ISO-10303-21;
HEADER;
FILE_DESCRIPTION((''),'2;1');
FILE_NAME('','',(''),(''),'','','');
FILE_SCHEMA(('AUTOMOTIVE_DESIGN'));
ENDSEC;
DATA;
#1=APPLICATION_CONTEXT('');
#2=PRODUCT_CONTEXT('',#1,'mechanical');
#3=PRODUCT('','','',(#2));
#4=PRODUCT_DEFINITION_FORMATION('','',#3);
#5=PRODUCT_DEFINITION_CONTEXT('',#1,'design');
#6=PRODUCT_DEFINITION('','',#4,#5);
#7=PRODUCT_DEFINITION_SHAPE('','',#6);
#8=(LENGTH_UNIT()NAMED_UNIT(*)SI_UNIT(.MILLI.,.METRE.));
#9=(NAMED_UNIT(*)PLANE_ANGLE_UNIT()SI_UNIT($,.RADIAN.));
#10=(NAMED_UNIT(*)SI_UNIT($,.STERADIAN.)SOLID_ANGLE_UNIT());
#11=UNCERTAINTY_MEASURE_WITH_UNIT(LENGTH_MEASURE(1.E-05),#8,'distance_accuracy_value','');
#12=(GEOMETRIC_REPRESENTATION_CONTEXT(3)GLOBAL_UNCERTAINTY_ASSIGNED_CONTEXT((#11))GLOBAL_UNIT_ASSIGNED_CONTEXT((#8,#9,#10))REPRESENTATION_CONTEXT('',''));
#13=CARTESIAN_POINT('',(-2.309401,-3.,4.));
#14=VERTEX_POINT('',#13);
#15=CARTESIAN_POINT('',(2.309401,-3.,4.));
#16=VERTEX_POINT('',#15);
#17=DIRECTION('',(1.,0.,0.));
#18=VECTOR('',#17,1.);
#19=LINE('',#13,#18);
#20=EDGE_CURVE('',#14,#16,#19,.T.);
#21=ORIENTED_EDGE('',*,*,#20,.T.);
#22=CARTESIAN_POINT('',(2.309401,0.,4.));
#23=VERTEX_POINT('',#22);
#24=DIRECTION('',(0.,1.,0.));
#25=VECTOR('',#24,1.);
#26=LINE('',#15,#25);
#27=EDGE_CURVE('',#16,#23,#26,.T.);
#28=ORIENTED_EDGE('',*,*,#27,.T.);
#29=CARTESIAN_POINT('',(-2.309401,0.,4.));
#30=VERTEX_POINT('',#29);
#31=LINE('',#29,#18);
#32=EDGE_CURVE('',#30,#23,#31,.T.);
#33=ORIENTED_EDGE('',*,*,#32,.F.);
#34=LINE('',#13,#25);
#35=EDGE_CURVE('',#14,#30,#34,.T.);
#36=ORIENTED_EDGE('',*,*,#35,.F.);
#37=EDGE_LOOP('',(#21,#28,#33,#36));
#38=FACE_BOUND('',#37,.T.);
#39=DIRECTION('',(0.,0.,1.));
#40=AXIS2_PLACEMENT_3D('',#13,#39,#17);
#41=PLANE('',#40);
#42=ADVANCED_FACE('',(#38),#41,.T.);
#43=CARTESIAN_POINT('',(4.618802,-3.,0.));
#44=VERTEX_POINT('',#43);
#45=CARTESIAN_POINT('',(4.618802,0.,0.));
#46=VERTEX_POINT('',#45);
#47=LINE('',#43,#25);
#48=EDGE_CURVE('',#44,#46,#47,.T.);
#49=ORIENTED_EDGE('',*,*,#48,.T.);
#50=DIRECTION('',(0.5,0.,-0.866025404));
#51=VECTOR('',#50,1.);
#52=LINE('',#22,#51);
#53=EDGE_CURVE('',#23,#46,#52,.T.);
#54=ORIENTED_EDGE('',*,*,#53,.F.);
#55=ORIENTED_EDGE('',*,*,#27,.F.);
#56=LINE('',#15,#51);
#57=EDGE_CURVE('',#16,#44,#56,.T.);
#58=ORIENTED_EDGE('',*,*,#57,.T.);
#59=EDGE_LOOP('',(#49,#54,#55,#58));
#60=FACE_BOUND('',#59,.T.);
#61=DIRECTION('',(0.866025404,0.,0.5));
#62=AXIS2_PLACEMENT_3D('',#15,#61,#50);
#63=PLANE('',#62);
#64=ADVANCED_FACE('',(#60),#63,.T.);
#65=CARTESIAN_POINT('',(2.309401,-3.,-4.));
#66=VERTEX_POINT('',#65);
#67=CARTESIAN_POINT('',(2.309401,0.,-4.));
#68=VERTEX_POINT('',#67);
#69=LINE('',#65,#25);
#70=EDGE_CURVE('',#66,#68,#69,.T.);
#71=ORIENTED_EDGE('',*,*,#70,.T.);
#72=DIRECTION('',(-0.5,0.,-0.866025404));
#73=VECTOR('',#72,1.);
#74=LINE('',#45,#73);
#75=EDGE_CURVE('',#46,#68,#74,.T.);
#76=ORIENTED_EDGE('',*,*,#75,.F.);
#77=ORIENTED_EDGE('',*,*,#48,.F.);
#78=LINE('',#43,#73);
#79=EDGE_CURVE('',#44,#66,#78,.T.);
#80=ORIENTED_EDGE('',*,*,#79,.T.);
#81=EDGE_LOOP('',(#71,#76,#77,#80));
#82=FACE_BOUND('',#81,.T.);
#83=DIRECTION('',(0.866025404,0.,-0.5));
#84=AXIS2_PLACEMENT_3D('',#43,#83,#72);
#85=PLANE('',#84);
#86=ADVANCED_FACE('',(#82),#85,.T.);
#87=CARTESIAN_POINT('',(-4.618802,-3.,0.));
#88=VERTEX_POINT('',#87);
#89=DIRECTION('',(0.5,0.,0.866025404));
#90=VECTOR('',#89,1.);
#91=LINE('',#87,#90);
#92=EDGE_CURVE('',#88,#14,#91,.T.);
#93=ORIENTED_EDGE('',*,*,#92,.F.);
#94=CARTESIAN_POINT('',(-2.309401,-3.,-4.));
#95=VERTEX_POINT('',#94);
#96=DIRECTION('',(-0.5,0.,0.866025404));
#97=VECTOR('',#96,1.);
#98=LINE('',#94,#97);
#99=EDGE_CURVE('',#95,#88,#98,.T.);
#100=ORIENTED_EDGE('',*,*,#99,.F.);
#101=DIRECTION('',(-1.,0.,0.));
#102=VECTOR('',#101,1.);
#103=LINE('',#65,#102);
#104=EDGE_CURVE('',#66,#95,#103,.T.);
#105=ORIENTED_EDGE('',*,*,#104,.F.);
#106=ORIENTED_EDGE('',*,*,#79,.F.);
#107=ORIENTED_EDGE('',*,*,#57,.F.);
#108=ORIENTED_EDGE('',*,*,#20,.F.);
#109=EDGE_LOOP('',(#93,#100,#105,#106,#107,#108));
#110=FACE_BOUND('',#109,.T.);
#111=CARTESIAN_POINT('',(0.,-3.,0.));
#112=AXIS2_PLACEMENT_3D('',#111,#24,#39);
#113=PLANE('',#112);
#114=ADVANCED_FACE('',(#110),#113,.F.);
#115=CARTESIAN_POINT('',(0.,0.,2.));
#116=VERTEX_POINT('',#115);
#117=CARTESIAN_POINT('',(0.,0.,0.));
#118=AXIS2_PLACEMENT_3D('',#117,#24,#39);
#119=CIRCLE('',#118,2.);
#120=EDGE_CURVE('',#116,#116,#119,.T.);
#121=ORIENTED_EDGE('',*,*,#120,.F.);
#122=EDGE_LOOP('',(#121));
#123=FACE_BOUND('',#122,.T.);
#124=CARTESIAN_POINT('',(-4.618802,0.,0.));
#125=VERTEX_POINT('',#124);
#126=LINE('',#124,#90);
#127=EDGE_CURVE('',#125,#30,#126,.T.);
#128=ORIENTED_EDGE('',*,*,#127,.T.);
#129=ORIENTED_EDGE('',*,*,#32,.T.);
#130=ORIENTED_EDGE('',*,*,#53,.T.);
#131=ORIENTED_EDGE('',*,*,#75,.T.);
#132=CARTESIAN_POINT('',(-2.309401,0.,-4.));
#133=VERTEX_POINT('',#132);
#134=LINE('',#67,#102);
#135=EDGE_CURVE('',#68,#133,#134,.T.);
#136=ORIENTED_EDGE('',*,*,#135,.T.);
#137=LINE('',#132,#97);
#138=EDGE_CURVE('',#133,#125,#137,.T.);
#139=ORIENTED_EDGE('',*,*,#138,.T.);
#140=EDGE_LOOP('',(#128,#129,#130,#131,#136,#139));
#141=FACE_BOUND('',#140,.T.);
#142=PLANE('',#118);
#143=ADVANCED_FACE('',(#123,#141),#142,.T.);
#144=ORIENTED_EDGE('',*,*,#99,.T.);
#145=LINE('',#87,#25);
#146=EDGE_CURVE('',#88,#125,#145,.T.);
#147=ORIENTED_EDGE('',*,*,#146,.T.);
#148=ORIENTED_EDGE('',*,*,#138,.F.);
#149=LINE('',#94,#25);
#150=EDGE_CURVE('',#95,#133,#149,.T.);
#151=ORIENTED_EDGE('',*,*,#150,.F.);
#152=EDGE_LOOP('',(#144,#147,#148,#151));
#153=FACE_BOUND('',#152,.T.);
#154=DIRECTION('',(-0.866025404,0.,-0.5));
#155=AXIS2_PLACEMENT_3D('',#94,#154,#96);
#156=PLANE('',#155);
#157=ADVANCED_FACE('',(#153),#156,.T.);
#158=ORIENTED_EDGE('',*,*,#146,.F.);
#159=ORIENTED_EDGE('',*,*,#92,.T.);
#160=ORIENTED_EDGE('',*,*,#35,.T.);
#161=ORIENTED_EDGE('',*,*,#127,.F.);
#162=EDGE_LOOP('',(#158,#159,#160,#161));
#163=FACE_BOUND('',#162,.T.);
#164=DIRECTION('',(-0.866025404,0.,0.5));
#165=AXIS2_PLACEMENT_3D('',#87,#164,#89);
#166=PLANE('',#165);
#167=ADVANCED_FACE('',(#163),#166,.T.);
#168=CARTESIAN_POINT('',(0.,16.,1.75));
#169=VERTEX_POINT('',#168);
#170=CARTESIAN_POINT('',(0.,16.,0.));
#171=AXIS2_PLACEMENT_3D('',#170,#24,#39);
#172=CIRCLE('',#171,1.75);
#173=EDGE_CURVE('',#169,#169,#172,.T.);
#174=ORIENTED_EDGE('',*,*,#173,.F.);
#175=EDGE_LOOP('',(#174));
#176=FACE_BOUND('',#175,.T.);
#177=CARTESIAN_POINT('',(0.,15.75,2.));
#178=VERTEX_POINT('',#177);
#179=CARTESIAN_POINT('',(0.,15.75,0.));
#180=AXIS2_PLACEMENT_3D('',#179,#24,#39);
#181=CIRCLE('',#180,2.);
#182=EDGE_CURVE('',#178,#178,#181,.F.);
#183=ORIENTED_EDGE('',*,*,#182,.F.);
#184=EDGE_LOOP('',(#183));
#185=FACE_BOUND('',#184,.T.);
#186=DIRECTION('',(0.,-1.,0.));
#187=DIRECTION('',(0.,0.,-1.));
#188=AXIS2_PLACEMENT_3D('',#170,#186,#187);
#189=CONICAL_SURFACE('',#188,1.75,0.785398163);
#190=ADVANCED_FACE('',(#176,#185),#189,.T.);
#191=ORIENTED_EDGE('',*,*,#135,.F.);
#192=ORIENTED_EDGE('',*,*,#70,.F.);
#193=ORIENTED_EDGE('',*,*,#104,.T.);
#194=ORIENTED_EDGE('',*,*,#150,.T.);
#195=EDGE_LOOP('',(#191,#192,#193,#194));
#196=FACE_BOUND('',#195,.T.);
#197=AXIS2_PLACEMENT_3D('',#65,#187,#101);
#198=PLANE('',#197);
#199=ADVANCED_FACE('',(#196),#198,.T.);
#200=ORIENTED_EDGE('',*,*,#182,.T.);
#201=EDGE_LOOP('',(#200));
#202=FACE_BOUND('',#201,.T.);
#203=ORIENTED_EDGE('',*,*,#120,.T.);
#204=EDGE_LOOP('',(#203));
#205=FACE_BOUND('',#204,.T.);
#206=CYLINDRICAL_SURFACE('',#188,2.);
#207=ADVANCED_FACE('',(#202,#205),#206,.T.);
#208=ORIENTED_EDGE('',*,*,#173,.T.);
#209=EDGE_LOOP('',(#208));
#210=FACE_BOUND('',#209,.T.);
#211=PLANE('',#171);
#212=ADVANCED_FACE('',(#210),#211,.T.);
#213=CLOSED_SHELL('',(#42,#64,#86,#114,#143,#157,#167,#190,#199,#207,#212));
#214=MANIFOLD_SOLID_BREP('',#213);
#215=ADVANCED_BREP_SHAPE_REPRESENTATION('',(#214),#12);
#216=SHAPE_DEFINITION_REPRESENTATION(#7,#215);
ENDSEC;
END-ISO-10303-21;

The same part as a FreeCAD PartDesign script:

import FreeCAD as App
import Part
import Sketcher
from FreeCAD import Vector
Q = App.Units.Quantity


def edges_at(feature, points):
    """Names of the edges that pass closest to the given points."""
    edges = feature.Shape.Edges
    near = lambda p: min(range(len(edges)), key=lambda i: edges[i].distToShape(Part.Vertex(*p))[0])
    return sorted({f"Edge{near(p) + 1}" for p in points})


def add_polygon(sketch, points):
    """Adds a closed chain of lines whose ends are joined by coincident constraints."""
    first, n = sketch.GeometryCount, len(points)
    for a, b in zip(points, points[1:] + points[:1]):
        sketch.addGeometry(Part.LineSegment(App.Vector(*a, 0), App.Vector(*b, 0)), False)
    for i in range(n):
        sketch.addConstraint(Sketcher.Constraint("Coincident", first + i, 2, first + (i + 1) % n, 1))

doc = App.newDocument("Part")
body = doc.addObject("PartDesign::Body", "Body")

sketch1 = body.newObject("Sketcher::SketchObject", "Sketch")
sketch1.AttachmentSupport = (doc.getObject("XZ_Plane"), [""])
sketch1.MapMode = "FlatFace"
add_polygon(sketch1, [(4.6, 0), (2.3, -4), (-2.3, -4), (-4.6, 0), (-2.3, 4), (2.3, 4)])
sketch1.addConstraint([
    Sketcher.Constraint("Horizontal", 1),
    Sketcher.Constraint("Horizontal", 4),
    Sketcher.Constraint("Symmetric", 0, 2, 3, 2, -1, 1),
    Sketcher.Constraint("Symmetric", 2, 2, 5, 2, -1, 1),
    Sketcher.Constraint("PointOnObject", 2, 2, -1),
    Sketcher.Constraint("Parallel", 2, 5),
    Sketcher.Constraint("Vertical", 1, 2, 3, 2),
    Sketcher.Constraint("Angle", 0, Q("-120 deg")),
    Sketcher.Constraint("DistanceY", 0, 2, -1, 1, Q("4 mm")),
    Sketcher.Constraint("DistanceX", -1, 1, 0, 2, Q("2.309401 mm")),
])
pad1 = body.newObject("PartDesign::Pad", "Pad")
pad1.Profile = sketch1
pad1.Length = 3

sketch2 = body.newObject("Sketcher::SketchObject", "Sketch001")
sketch2.AttachmentSupport = (doc.getObject("XZ_Plane"), [""])
sketch2.MapMode = "FlatFace"
sketch2.addGeometry(Part.Circle(Vector(0, 0, 0), Vector(0, 0, 1), 2), False)
sketch2.addConstraint([
    Sketcher.Constraint("Coincident", 0, 3, -1, 1),
    Sketcher.Constraint("Diameter", 0, Q("4 mm")),
])
pad2 = body.newObject("PartDesign::Pad", "Pad001")
pad2.Profile = sketch2
pad2.Length = 16
pad2.Reversed = True
doc.recompute()

chamfer = body.newObject("PartDesign::Chamfer", "Chamfer")
chamfer.Base = (pad2, edges_at(pad2, [(0, 16, -2)]))
chamfer.Size = 0.25

doc.recompute()
